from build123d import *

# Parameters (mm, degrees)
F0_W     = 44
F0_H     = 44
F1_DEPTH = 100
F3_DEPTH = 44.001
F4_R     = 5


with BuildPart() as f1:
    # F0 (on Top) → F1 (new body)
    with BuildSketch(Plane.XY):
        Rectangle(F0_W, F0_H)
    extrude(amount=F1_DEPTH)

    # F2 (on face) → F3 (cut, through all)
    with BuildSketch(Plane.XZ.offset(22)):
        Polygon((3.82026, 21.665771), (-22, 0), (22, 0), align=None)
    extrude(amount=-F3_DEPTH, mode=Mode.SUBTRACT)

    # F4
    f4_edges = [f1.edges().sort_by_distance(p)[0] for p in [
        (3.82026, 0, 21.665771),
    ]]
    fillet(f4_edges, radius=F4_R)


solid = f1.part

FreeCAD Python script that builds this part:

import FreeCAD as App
import Part
import Sketcher
from FreeCAD import Vector
Q = App.Units.Quantity


def edges_at(feature, points):
    """Names of the edges that pass closest to the given points."""
    edges = feature.Shape.Edges
    near = lambda p: min(range(len(edges)), key=lambda i: edges[i].distToShape(Part.Vertex(*p))[0])
    return sorted({f"Edge{near(p) + 1}" for p in points})

doc = App.newDocument("Part")
body = doc.addObject("PartDesign::Body", "Body")

# Sketch on XY plane
sketch1 = body.newObject("Sketcher::SketchObject", "Sketch")
sketch1.AttachmentSupport = (doc.getObject("XY_Plane"), [""])
sketch1.MapMode = "FlatFace"
sketch1.addGeometry([
    Part.LineSegment(Vector(-22, 22, 0), Vector(-22, -22, 0)),
    Part.LineSegment(Vector(-22, -22, 0), Vector(22, -22, 0)),
    Part.LineSegment(Vector(22, -22, 0), Vector(22, 22, 0)),
    Part.LineSegment(Vector(22, 22, 0), Vector(-22, 22, 0)),
], False)
sketch1.addConstraint([
    Sketcher.Constraint("Coincident", 0, 2, 1, 1),
    Sketcher.Constraint("Coincident", 1, 2, 2, 1),
    Sketcher.Constraint("Coincident", 2, 2, 3, 1),
    Sketcher.Constraint("Coincident", 3, 2, 0, 1),
    Sketcher.Constraint("Vertical", 0),
    Sketcher.Constraint("Horizontal", 1),
    Sketcher.Constraint("Vertical", 2),
    Sketcher.Constraint("Horizontal", 3),
    Sketcher.Constraint("Symmetric", 0, 2, 2, 2, -1, 1),
    Sketcher.Constraint("Equal", 3, 0),
    Sketcher.Constraint("DistanceX", 1, 1, 1, 2, Q("44 mm")),
])
pad1 = body.newObject("PartDesign::Pad", "Pad")
pad1.Profile = sketch1
pad1.Length = 100

# Sketch on XZ plane
sketch2 = body.newObject("Sketcher::SketchObject", "Sketch001")
sketch2.AttachmentSupport = (doc.getObject("XZ_Plane"), [""])
sketch2.MapMode = "FlatFace"
sketch2.AttachmentOffset = App.Placement(Vector(0, 0, 22), App.Rotation())
sketch2.addGeometry([
    Part.LineSegment(Vector(4, 22, 0), Vector(-22, 0, 0)),
    Part.LineSegment(Vector(-22, 0, 0), Vector(22, 0, 0)),
    Part.LineSegment(Vector(22, 0, 0), Vector(4, 22, 0)),
], False)
sketch2.addConstraint([
    Sketcher.Constraint("Coincident", 0, 2, 1, 1),
    Sketcher.Constraint("Coincident", 1, 2, 2, 1),
    Sketcher.Constraint("Coincident", 2, 2, 0, 1),
    Sketcher.Constraint("Horizontal", 1),
    Sketcher.Constraint("Symmetric", 0, 2, 1, 2, -1, 1),
    Sketcher.Constraint("Perpendicular", 0, 2),
    Sketcher.Constraint("DistanceX", 1, 1, 1, 2, Q("44 mm")),
    Sketcher.Constraint("Angle", 0, Q("-140 deg")),
])
pocket1 = body.newObject("PartDesign::Pocket", "Pocket")
pocket1.Profile = sketch2
pocket1.Type = "ThroughAll"
doc.recompute()

fillet = body.newObject("PartDesign::Fillet", "Fillet")
fillet.Base = (pocket1, edges_at(pocket1, [(3.82, 0, 21.666)]))
fillet.Radius = 5

doc.recompute()
